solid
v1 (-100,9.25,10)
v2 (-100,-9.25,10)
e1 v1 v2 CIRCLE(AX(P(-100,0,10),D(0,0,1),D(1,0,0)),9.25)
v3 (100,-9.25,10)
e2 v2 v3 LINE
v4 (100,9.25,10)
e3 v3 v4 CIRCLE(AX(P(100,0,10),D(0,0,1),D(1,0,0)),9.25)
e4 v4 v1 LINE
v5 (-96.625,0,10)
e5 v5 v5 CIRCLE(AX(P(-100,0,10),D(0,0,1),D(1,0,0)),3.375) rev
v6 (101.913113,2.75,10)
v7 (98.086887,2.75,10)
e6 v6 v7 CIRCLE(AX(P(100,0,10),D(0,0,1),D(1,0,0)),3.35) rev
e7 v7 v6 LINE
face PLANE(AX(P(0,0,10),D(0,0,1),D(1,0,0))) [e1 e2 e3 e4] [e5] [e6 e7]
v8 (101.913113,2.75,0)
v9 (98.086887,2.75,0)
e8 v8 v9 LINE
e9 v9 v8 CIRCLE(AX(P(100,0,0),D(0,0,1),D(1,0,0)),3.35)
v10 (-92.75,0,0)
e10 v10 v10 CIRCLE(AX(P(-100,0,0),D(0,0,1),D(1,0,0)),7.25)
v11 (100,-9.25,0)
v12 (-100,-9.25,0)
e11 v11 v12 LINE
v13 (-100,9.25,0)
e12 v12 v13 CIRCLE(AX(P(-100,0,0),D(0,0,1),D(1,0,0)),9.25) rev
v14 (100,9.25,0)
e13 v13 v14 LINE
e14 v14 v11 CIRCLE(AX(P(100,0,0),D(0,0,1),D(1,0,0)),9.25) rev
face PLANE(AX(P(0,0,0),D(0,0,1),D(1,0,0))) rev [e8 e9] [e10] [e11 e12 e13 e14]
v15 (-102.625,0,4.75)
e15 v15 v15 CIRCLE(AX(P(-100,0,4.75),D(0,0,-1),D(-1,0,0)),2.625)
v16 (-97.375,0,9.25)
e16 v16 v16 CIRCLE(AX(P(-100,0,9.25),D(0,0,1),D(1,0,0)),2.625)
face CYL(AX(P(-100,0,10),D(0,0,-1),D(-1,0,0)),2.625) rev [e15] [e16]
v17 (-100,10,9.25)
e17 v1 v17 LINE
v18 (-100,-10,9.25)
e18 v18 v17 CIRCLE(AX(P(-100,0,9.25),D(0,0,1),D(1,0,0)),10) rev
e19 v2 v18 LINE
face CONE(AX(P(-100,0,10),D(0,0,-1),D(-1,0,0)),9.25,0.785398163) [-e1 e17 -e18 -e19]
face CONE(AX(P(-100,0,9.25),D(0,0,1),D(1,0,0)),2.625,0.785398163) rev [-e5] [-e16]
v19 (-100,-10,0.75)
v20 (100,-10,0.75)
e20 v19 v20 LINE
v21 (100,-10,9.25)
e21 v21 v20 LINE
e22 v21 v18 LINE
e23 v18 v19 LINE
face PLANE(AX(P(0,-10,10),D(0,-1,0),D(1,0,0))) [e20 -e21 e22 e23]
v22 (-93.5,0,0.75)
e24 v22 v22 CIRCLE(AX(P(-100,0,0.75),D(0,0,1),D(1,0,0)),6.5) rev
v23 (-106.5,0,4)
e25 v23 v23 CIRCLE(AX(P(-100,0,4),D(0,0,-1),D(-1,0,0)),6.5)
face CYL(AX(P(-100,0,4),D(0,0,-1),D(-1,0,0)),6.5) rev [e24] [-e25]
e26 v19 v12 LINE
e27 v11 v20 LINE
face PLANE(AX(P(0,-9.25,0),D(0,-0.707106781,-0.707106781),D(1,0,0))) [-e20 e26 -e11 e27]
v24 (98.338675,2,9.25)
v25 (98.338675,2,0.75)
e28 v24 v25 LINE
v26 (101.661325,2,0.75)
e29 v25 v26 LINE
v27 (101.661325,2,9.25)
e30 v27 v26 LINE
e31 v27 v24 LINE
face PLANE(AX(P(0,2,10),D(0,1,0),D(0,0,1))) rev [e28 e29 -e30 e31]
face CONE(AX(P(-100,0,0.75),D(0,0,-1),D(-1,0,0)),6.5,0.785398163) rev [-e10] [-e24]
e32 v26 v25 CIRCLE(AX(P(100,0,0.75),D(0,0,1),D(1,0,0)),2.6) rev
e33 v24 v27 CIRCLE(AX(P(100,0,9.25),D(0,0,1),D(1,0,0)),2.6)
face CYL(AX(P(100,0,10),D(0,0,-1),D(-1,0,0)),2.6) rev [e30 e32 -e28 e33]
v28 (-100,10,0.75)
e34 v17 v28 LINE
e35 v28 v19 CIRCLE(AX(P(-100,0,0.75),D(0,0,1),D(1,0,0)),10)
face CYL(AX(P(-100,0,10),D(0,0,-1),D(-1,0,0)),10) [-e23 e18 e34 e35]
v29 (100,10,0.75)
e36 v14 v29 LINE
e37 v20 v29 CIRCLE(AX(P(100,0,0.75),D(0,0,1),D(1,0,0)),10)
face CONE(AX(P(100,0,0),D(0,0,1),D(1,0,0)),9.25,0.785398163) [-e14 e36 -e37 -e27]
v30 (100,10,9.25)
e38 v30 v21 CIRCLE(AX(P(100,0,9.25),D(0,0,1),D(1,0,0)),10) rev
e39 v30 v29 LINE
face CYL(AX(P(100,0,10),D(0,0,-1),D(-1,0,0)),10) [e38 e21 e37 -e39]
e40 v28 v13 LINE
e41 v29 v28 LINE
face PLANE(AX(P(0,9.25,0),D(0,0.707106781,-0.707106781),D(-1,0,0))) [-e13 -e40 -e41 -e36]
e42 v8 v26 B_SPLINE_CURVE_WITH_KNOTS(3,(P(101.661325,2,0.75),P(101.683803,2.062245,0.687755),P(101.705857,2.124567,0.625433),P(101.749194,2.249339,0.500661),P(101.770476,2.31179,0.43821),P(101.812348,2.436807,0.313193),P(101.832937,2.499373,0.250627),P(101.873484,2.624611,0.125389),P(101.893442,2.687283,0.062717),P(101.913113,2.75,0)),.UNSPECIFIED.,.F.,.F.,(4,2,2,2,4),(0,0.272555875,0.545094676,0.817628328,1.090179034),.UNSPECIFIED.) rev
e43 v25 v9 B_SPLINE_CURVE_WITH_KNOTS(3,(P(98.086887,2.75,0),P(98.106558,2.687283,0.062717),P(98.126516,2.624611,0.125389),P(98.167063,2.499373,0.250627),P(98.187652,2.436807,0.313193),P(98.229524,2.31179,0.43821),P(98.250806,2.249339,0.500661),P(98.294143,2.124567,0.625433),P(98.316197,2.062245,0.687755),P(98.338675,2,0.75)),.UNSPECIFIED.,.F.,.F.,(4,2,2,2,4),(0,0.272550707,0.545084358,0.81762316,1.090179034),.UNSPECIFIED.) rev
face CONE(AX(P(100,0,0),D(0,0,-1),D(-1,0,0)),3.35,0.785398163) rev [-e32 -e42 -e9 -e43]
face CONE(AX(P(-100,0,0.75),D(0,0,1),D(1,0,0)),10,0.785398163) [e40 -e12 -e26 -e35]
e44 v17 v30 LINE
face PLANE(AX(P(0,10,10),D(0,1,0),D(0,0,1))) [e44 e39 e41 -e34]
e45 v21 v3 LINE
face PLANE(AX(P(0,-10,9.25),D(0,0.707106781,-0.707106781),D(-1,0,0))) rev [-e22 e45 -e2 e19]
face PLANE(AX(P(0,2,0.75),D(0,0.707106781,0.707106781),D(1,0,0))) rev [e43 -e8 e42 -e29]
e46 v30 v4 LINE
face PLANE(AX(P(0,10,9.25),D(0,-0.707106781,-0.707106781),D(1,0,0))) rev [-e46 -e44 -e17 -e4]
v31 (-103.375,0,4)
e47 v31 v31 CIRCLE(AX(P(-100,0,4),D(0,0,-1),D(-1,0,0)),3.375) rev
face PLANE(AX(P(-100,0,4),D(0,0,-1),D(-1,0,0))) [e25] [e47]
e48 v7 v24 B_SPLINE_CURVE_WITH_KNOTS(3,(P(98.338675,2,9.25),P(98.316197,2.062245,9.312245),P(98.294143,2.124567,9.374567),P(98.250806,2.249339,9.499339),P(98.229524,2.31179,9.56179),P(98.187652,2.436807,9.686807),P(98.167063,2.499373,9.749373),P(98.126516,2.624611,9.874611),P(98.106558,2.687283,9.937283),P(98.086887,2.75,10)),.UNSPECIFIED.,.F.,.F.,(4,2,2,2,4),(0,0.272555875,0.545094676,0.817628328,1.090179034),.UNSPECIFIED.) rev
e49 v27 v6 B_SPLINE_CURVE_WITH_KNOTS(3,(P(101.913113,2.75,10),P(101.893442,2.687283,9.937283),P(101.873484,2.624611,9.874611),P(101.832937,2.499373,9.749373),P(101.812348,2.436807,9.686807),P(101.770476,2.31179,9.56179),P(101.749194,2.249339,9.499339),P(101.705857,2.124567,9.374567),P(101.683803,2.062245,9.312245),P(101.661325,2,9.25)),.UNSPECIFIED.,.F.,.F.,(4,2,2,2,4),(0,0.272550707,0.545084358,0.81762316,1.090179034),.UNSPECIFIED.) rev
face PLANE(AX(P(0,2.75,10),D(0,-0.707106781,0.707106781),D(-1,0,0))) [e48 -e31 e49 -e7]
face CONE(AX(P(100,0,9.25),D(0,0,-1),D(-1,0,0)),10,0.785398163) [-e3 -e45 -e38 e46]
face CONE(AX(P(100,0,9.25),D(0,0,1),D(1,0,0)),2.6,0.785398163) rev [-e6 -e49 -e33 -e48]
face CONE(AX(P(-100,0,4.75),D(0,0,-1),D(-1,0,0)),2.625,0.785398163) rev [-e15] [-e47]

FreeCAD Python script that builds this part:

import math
import FreeCAD as App
import Part
import Sketcher
from FreeCAD import Vector
Q = App.Units.Quantity


def edges_at(feature, points):
    """Names of the edges that pass closest to the given points."""
    edges = feature.Shape.Edges
    near = lambda p: min(range(len(edges)), key=lambda i: edges[i].distToShape(Part.Vertex(*p))[0])
    return sorted({f"Edge{near(p) + 1}" for p in points})

doc = App.newDocument("Part")
body = doc.addObject("PartDesign::Body", "Body")

# Sketch on XY plane
sketch1 = body.newObject("Sketcher::SketchObject", "Sketch")
sketch1.AttachmentSupport = (doc.getObject("XY_Plane"), [""])
sketch1.MapMode = "FlatFace"
sketch1.addGeometry(Part.LineSegment(Vector(100, 10, 0), Vector(-100, 10, 0)), False)
sketch1.addGeometry(Part.ArcOfCircle(Part.Circle(Vector(-100, 0, 0), Vector(0, 0, 1), 10), math.radians(90), math.radians(270)), False)
sketch1.addGeometry(Part.LineSegment(Vector(-100, -10, 0), Vector(100, -10, 0)), False)
sketch1.addGeometry(Part.ArcOfCircle(Part.Circle(Vector(100, 0, 0), Vector(0, 0, 1), 10), math.radians(-90), math.radians(90)), False)
sketch1.addGeometry(Part.ArcOfCircle(Part.Circle(Vector(100, 0, 0), Vector(0, 0, 1), 2.6), math.radians(130), math.radians(410)), False)
sketch1.addGeometry(Part.LineSegment(Vector(98.3, 2, 0), Vector(101.7, 2, 0)), False)
sketch1.addGeometry(Part.Circle(Vector(-100, 0, 0), Vector(0, 0, 1), 2.6), False)
sketch1.addConstraint(Sketcher.Constraint("Tangent", 0, 2, 1, 1))
sketch1.addConstraint(Sketcher.Constraint("Tangent", 1, 2, 2, 1))
sketch1.addConstraint(Sketcher.Constraint("Tangent", 2, 2, 3, 1))
sketch1.addConstraint(Sketcher.Constraint("Tangent", 3, 2, 0, 1))
sketch1.addConstraint(Sketcher.Constraint("Coincident", 4, 1, 5, 1))
sketch1.addConstraint(Sketcher.Constraint("Coincident", 5, 2, 4, 2))
sketch1.addConstraint(Sketcher.Constraint("Horizontal", 0))
sketch1.addConstraint(Sketcher.Constraint("Horizontal", 2))
sketch1.addConstraint(Sketcher.Constraint("Horizontal", 5))
sketch1.addConstraint(Sketcher.Constraint("Coincident", 4, 3, 3, 3))
sketch1.addConstraint(Sketcher.Constraint("Coincident", 6, 3, 1, 3))
sketch1.addConstraint(Sketcher.Constraint("Symmetric", 1, 3, 3, 3, -1, 1))
sketch1.addConstraint(Sketcher.Constraint("Radius", 1, Q("10 mm")))
sketch1.addConstraint(Sketcher.Constraint("Radius", 4, Q("2.6 mm")))
sketch1.addConstraint(Sketcher.Constraint("Diameter", 6, Q("5.25 mm")))
sketch1.addConstraint(Sketcher.Constraint("DistanceX", 0, 2, 0, 1, Q("200 mm")))
sketch1.addConstraint(Sketcher.Constraint("DistanceY", -1, 1, 4, 1, Q("2 mm")))
pad1 = body.newObject("PartDesign::Pad", "Pad")
pad1.Profile = sketch1
pad1.Length = 10

# Sketch on XY plane
sketch2 = body.newObject("Sketcher::SketchObject", "Sketch001")
sketch2.AttachmentSupport = (doc.getObject("XY_Plane"), [""])
sketch2.MapMode = "FlatFace"
sketch2.addGeometry(Part.Circle(Vector(-100, 0, 0), Vector(0, 0, 1), 6), False)
sketch2.addConstraint(Sketcher.Constraint("PointOnObject", 0, 3, -1))
sketch2.addConstraint(Sketcher.Constraint("Diameter", 0, Q("13 mm")))
sketch2.addConstraint(Sketcher.Constraint("DistanceX", 0, 3, -1, 1, Q("100 mm")))
pocket1 = body.newObject("PartDesign::Pocket", "Pocket")
pocket1.Profile = sketch2
pocket1.Length = 4
pocket1.Reversed = True
doc.recompute()

chamfer = body.newObject("PartDesign::Chamfer", "Chamfer")
chamfer.Base = (pocket1, edges_at(pocket1, [
    (-110, 0, 0),
    (0, 10, 0),
    (110, 0, 0),
    (110, 0, 10),
    (0, -10, 0),
    (0, 10, 10),
    (-110, 0, 10),
    (-102.625, 0, 4),
    (-93.5, 0, 0),
    (-102.625, 0, 10),
    (100, -2.6, 10),
    (100, 2, 10),
    (0, -10, 10),
    (100, 2, 0),
    (100, -2.6, 0),
]))
chamfer.Size = 0.75

doc.recompute()
